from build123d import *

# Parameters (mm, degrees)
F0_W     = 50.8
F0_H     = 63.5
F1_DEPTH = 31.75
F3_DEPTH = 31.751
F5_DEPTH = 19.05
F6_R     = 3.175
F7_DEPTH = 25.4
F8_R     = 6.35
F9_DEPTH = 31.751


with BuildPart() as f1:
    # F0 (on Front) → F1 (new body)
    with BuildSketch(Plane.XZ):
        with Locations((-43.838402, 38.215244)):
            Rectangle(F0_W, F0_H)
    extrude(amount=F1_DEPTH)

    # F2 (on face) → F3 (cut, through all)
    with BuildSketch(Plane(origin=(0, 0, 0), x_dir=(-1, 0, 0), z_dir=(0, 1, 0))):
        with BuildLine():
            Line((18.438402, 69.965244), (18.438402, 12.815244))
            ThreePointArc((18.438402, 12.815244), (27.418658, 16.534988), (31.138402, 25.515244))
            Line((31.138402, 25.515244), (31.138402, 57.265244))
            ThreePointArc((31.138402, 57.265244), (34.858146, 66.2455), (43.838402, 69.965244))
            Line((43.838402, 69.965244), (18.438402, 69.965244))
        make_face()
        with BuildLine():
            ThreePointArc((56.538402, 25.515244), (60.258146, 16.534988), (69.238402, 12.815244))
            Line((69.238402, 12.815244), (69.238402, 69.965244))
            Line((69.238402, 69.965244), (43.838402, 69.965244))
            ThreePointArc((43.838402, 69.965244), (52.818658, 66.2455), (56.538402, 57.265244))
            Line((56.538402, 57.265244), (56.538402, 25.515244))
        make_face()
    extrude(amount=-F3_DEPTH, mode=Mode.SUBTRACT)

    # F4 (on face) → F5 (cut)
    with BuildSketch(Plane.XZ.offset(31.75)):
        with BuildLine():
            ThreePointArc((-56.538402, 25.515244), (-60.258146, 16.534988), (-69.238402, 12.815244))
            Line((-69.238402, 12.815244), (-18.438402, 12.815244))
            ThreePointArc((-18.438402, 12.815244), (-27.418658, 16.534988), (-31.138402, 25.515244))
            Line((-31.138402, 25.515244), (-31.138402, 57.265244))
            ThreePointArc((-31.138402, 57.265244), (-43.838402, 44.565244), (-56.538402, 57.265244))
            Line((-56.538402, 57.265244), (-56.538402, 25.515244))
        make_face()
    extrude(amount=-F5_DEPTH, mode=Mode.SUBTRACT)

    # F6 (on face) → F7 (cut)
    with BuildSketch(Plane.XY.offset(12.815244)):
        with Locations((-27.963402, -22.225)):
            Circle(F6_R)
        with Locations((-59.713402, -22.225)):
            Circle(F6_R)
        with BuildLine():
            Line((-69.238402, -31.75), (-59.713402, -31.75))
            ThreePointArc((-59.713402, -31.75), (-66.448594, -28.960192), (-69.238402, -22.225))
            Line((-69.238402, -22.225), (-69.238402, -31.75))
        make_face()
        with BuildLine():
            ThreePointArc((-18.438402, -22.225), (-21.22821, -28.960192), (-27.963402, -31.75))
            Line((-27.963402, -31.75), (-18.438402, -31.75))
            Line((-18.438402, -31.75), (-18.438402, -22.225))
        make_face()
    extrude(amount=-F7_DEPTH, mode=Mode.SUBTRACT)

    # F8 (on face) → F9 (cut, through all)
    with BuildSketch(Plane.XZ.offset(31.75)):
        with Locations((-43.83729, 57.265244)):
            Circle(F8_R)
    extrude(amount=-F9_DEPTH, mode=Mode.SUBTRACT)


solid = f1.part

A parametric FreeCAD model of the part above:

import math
import FreeCAD as App
import Part
import Sketcher
Q = App.Units.Quantity

doc = App.newDocument("Part")
params = doc.addObject("Spreadsheet::Sheet", "Params")
for row, (alias, value) in enumerate([
    ("sketch1_width", "2 in"),
    ("sketch1_height", "2.5 in"),
    ("pad1_length", "1.25 in"),
    ("sketch2_radius", "0.5 in"),
    ("sketch2_height", "2.25 in"),
    ("sketch3_radius", "0.5 in"),
    ("sketch3_height", "1.25 in"),
    ("pocket2_length", "0.75 in"),
    ("sketch4_diameter", "0.25 in"),
    ("sketch4_radius", "0.375 in"),
    ("pocket3_length", "1 in"),
    ("sketch5_diameter", "0.5 in"),
], start=1):
    params.set(f"A{row}", alias)
    params.set(f"B{row}", "=" + value)
    params.setAlias(f"B{row}", alias)

body = doc.addObject("PartDesign::Body", "Body")

# Sketch on XZ plane
sketch1 = body.newObject("Sketcher::SketchObject", "Sketch")
sketch1.AttachmentSupport = (doc.getObject("XZ_Plane"), [""])
sketch1.MapMode = "FlatFace"
sketch1.addGeometry(Part.LineSegment(App.Vector(-69, 70, 0), App.Vector(-69, 6, 0)), False)
sketch1.addGeometry(Part.LineSegment(App.Vector(-69, 6, 0), App.Vector(-18, 6, 0)), False)
sketch1.addGeometry(Part.LineSegment(App.Vector(-18, 6, 0), App.Vector(-18, 70, 0)), False)
sketch1.addGeometry(Part.LineSegment(App.Vector(-18, 70, 0), App.Vector(-69, 70, 0)), False)
sketch1.addConstraint(Sketcher.Constraint("Coincident", 0, 2, 1, 1))
sketch1.addConstraint(Sketcher.Constraint("Coincident", 1, 2, 2, 1))
sketch1.addConstraint(Sketcher.Constraint("Coincident", 2, 2, 3, 1))
sketch1.addConstraint(Sketcher.Constraint("Coincident", 3, 2, 0, 1))
sketch1.addConstraint(Sketcher.Constraint("Vertical", 0))
sketch1.addConstraint(Sketcher.Constraint("Horizontal", 1))
sketch1.addConstraint(Sketcher.Constraint("Vertical", 2))
sketch1.addConstraint(Sketcher.Constraint("Horizontal", 3))
sketch1.addConstraint(Sketcher.Constraint("DistanceX", 1, 1, 1, 2, Q("2 in")))
sketch1.addConstraint(Sketcher.Constraint("DistanceY", 0, 2, 0, 1, Q("2.5 in")))
sketch1.addConstraint(Sketcher.Constraint("DistanceX", 0, 2, -1, 1, 69.238402))
sketch1.addConstraint(Sketcher.Constraint("DistanceY", -1, 1, 0, 2, 6.465244))
sketch1.setExpression("Constraints[8]", "Params.sketch1_width")
sketch1.setExpression("Constraints[9]", "Params.sketch1_height")
pad1 = body.newObject("PartDesign::Pad", "Pad")
pad1.Profile = sketch1
pad1.setExpression("Length", "Params.pad1_length")

# Sketch on XZ plane
sketch2 = body.newObject("Sketcher::SketchObject", "Sketch001")
sketch2.AttachmentSupport = (doc.getObject("XZ_Plane"), [""])
sketch2.MapMode = "FlatFace"
sketch2.addGeometry(Part.LineSegment(App.Vector(-18, 70, 0), App.Vector(-18, 13, 0)), False)
sketch2.addGeometry(Part.ArcOfCircle(Part.Circle(App.Vector(-18, 26, 0), App.Vector(0, 0, 1), 13), math.radians(-180), math.radians(-90)), False)
sketch2.addGeometry(Part.LineSegment(App.Vector(-31, 26, 0), App.Vector(-31, 57, 0)), False)
sketch2.addGeometry(Part.ArcOfCircle(Part.Circle(App.Vector(-44, 57, 0), App.Vector(0, 0, 1), 13), math.radians(0), math.radians(90)), False)
sketch2.addGeometry(Part.LineSegment(App.Vector(-44, 70, 0), App.Vector(-18, 70, 0)), False)
sketch2.addGeometry(Part.ArcOfCircle(Part.Circle(App.Vector(-69, 26, 0), App.Vector(0, 0, 1), 13), math.radians(-90), math.radians(0)), False)
sketch2.addGeometry(Part.LineSegment(App.Vector(-69, 13, 0), App.Vector(-69, 70, 0)), False)
sketch2.addGeometry(Part.LineSegment(App.Vector(-69, 70, 0), App.Vector(-44, 70, 0)), False)
sketch2.addGeometry(Part.ArcOfCircle(Part.Circle(App.Vector(-44, 57, 0), App.Vector(0, 0, 1), 13), math.radians(90), math.radians(180)), False)
sketch2.addGeometry(Part.LineSegment(App.Vector(-57, 57, 0), App.Vector(-57, 26, 0)), False)
sketch2.addConstraint(Sketcher.Constraint("Coincident", 0, 2, 1, 2))
sketch2.addConstraint(Sketcher.Constraint("Tangent", 1, 1, 2, 1))
sketch2.addConstraint(Sketcher.Constraint("Tangent", 2, 2, 3, 1))
sketch2.addConstraint(Sketcher.Constraint("Tangent", 3, 2, 4, 1))
sketch2.addConstraint(Sketcher.Constraint("Coincident", 4, 2, 0, 1))
sketch2.addConstraint(Sketcher.Constraint("Coincident", 5, 1, 6, 1))
sketch2.addConstraint(Sketcher.Constraint("Coincident", 6, 2, 7, 1))
sketch2.addConstraint(Sketcher.Constraint("Tangent", 7, 2, 8, 1))
sketch2.addConstraint(Sketcher.Constraint("Tangent", 8, 2, 9, 1))
sketch2.addConstraint(Sketcher.Constraint("Tangent", 9, 2, 5, 2))
sketch2.addConstraint(Sketcher.Constraint("Vertical", 0))
sketch2.addConstraint(Sketcher.Constraint("Vertical", 2))
sketch2.addConstraint(Sketcher.Constraint("Horizontal", 4))
sketch2.addConstraint(Sketcher.Constraint("Vertical", 6))
sketch2.addConstraint(Sketcher.Constraint("Horizontal", 7))
sketch2.addConstraint(Sketcher.Constraint("Vertical", 9))
sketch2.addConstraint(Sketcher.Constraint("Coincident", 8, 3, 3, 3))
sketch2.addConstraint(Sketcher.Constraint("Equal", 1, 3))
sketch2.addConstraint(Sketcher.Constraint("Equal", 3, 5))
sketch2.addConstraint(Sketcher.Constraint("Equal", 5, 8))
sketch2.addConstraint(Sketcher.Constraint("Horizontal", 1, 3, 5, 3))
sketch2.addConstraint(Sketcher.Constraint("Vertical", 1, 3, 0, 2))
sketch2.addConstraint(Sketcher.Constraint("Equal", 4, 7))
sketch2.addConstraint(Sketcher.Constraint("Radius", 1, Q("0.5 in")))
sketch2.addConstraint(Sketcher.Constraint("DistanceY", 0, 2, 0, 1, Q("2.25 in")))
sketch2.addConstraint(Sketcher.Constraint("DistanceX", 1, 3, -1, 1, 18.438402))
sketch2.addConstraint(Sketcher.Constraint("DistanceY", -1, 1, 1, 3, 25.515244))
sketch2.setExpression("Constraints[23]", "Params.sketch2_radius")
sketch2.setExpression("Constraints[24]", "Params.sketch2_height")
pocket1 = body.newObject("PartDesign::Pocket", "Pocket")
pocket1.Profile = sketch2
pocket1.Type = "ThroughAll"
pocket1.Reversed = True

# Sketch on XZ plane
sketch3 = body.newObject("Sketcher::SketchObject", "Sketch002")
sketch3.AttachmentSupport = (doc.getObject("XZ_Plane"), [""])
sketch3.MapMode = "FlatFace"
sketch3.AttachmentOffset = App.Placement(App.Vector(0, 0, 1.25 * 25.4), App.Rotation())
sketch3.addGeometry(Part.ArcOfCircle(Part.Circle(App.Vector(-69, 26, 0), App.Vector(0, 0, 1), 13), math.radians(-90), math.radians(0)), False)
sketch3.addGeometry(Part.LineSegment(App.Vector(-69, 13, 0), App.Vector(-18, 13, 0)), False)
sketch3.addGeometry(Part.ArcOfCircle(Part.Circle(App.Vector(-18, 26, 0), App.Vector(0, 0, 1), 13), math.radians(-180), math.radians(-90)), False)
sketch3.addGeometry(Part.LineSegment(App.Vector(-31, 26, 0), App.Vector(-31, 57, 0)), False)
sketch3.addGeometry(Part.ArcOfCircle(Part.Circle(App.Vector(-44, 57, 0), App.Vector(0, 0, 1), 13), math.radians(180), math.radians(360)), False)
sketch3.addGeometry(Part.LineSegment(App.Vector(-57, 57, 0), App.Vector(-57, 26, 0)), False)
sketch3.addConstraint(Sketcher.Constraint("Tangent", 0, 1, 1, 1))
sketch3.addConstraint(Sketcher.Constraint("Tangent", 1, 2, 2, 2))
sketch3.addConstraint(Sketcher.Constraint("Tangent", 2, 1, 3, 1))
sketch3.addConstraint(Sketcher.Constraint("Tangent", 3, 2, 4, 2))
sketch3.addConstraint(Sketcher.Constraint("Tangent", 4, 1, 5, 1))
sketch3.addConstraint(Sketcher.Constraint("Tangent", 5, 2, 0, 2))
sketch3.addConstraint(Sketcher.Constraint("Horizontal", 1))
sketch3.addConstraint(Sketcher.Constraint("Vertical", 3))
sketch3.addConstraint(Sketcher.Constraint("Vertical", 5))
sketch3.addConstraint(Sketcher.Constraint("Equal", 0, 2))
sketch3.addConstraint(Sketcher.Constraint("Equal", 2, 4))
sketch3.addConstraint(Sketcher.Constraint("Radius", 0, Q("0.5 in")))
sketch3.addConstraint(Sketcher.Constraint("DistanceY", 3, 1, 3, 2, Q("1.25 in")))
sketch3.addConstraint(Sketcher.Constraint("DistanceX", 2, 3, -1, 1, 18.438402))
sketch3.addConstraint(Sketcher.Constraint("DistanceY", -1, 1, 0, 3, 25.515244))
sketch3.setExpression("Constraints[11]", "Params.sketch3_radius")
sketch3.setExpression("Constraints[12]", "Params.sketch3_height")
pocket2 = body.newObject("PartDesign::Pocket", "Pocket001")
pocket2.Profile = sketch3
pocket2.setExpression("Length", "Params.pocket2_length")

# Sketch on XY plane
sketch4 = body.newObject("Sketcher::SketchObject", "Sketch003")
sketch4.AttachmentSupport = (doc.getObject("XY_Plane"), [""])
sketch4.MapMode = "FlatFace"
sketch4.AttachmentOffset = App.Placement(App.Vector(0, 0, 12.815244), App.Rotation())
sketch4.addGeometry(Part.Circle(App.Vector(-28, -22.2, 0), App.Vector(0, 0, 1), 3.2), False)
sketch4.addGeometry(Part.Circle(App.Vector(-59.7, -22.2, 0), App.Vector(0, 0, 1), 3.2), False)
sketch4.addGeometry(Part.LineSegment(App.Vector(-69.2, -31.8, 0), App.Vector(-59.7, -31.8, 0)), False)
sketch4.addGeometry(Part.ArcOfCircle(Part.Circle(App.Vector(-59.7, -22.2, 0), App.Vector(0, 0, 1), 9.5), math.radians(-180), math.radians(-90)), False)
sketch4.addGeometry(Part.LineSegment(App.Vector(-69.2, -22.2, 0), App.Vector(-69.2, -31.8, 0)), False)
sketch4.addGeometry(Part.ArcOfCircle(Part.Circle(App.Vector(-28, -22.2, 0), App.Vector(0, 0, 1), 9.5), math.radians(-90), math.radians(0)), False)
sketch4.addGeometry(Part.LineSegment(App.Vector(-28, -31.8, 0), App.Vector(-18.4, -31.8, 0)), False)
sketch4.addGeometry(Part.LineSegment(App.Vector(-18.4, -31.8, 0), App.Vector(-18.4, -22.2, 0)), False)
sketch4.addConstraint(Sketcher.Constraint("Tangent", 2, 2, 3, 2))
sketch4.addConstraint(Sketcher.Constraint("Tangent", 3, 1, 4, 1))
sketch4.addConstraint(Sketcher.Constraint("Coincident", 4, 2, 2, 1))
sketch4.addConstraint(Sketcher.Constraint("Tangent", 5, 1, 6, 1))
sketch4.addConstraint(Sketcher.Constraint("Coincident", 6, 2, 7, 1))
sketch4.addConstraint(Sketcher.Constraint("Tangent", 7, 2, 5, 2))
sketch4.addConstraint(Sketcher.Constraint("Horizontal", 2))
sketch4.addConstraint(Sketcher.Constraint("Vertical", 4))
sketch4.addConstraint(Sketcher.Constraint("Horizontal", 6))
sketch4.addConstraint(Sketcher.Constraint("Vertical", 7))
sketch4.addConstraint(Sketcher.Constraint("Coincident", 3, 3, 1, 3))
sketch4.addConstraint(Sketcher.Constraint("Coincident", 5, 3, 0, 3))
sketch4.addConstraint(Sketcher.Constraint("Equal", 0, 1))
sketch4.addConstraint(Sketcher.Constraint("Equal", 3, 5))
sketch4.addConstraint(Sketcher.Constraint("Horizontal", 0, 3, 1, 3))
sketch4.addConstraint(Sketcher.Constraint("Diameter", 0, Q("0.25 in")))
sketch4.addConstraint(Sketcher.Constraint("Radius", 3, Q("0.375 in")))
sketch4.addConstraint(Sketcher.Constraint("DistanceY", 2, 2, -1, 1, Q("1.25 in")))
sketch4.addConstraint(Sketcher.Constraint("DistanceX", 1, 3, 0, 3, Q("1.25 in")))
sketch4.addConstraint(Sketcher.Constraint("DistanceX", 0, 3, -1, 1, 27.963402))
sketch4.setExpression("Constraints[15]", "Params.sketch4_diameter")
sketch4.setExpression("Constraints[16]", "Params.sketch4_radius")
pocket3 = body.newObject("PartDesign::Pocket", "Pocket002")
pocket3.Profile = sketch4
pocket3.setExpression("Length", "Params.pocket3_length")

# Sketch on XZ plane
sketch5 = body.newObject("Sketcher::SketchObject", "Sketch004")
sketch5.AttachmentSupport = (doc.getObject("XZ_Plane"), [""])
sketch5.MapMode = "FlatFace"
sketch5.AttachmentOffset = App.Placement(App.Vector(0, 0, 1.25 * 25.4), App.Rotation())
sketch5.addGeometry(Part.Circle(App.Vector(-44, 57, 0), App.Vector(0, 0, 1), 6), False)
sketch5.addConstraint(Sketcher.Constraint("Diameter", 0, Q("0.5 in")))
sketch5.addConstraint(Sketcher.Constraint("DistanceX", 0, 3, -1, 1, 43.83729))
sketch5.addConstraint(Sketcher.Constraint("DistanceY", -1, 1, 0, 3, 57.265244))
sketch5.setExpression("Constraints[0]", "Params.sketch5_diameter")
pocket4 = body.newObject("PartDesign::Pocket", "Pocket003")
pocket4.Profile = sketch5
pocket4.Type = "ThroughAll"

doc.recompute()
